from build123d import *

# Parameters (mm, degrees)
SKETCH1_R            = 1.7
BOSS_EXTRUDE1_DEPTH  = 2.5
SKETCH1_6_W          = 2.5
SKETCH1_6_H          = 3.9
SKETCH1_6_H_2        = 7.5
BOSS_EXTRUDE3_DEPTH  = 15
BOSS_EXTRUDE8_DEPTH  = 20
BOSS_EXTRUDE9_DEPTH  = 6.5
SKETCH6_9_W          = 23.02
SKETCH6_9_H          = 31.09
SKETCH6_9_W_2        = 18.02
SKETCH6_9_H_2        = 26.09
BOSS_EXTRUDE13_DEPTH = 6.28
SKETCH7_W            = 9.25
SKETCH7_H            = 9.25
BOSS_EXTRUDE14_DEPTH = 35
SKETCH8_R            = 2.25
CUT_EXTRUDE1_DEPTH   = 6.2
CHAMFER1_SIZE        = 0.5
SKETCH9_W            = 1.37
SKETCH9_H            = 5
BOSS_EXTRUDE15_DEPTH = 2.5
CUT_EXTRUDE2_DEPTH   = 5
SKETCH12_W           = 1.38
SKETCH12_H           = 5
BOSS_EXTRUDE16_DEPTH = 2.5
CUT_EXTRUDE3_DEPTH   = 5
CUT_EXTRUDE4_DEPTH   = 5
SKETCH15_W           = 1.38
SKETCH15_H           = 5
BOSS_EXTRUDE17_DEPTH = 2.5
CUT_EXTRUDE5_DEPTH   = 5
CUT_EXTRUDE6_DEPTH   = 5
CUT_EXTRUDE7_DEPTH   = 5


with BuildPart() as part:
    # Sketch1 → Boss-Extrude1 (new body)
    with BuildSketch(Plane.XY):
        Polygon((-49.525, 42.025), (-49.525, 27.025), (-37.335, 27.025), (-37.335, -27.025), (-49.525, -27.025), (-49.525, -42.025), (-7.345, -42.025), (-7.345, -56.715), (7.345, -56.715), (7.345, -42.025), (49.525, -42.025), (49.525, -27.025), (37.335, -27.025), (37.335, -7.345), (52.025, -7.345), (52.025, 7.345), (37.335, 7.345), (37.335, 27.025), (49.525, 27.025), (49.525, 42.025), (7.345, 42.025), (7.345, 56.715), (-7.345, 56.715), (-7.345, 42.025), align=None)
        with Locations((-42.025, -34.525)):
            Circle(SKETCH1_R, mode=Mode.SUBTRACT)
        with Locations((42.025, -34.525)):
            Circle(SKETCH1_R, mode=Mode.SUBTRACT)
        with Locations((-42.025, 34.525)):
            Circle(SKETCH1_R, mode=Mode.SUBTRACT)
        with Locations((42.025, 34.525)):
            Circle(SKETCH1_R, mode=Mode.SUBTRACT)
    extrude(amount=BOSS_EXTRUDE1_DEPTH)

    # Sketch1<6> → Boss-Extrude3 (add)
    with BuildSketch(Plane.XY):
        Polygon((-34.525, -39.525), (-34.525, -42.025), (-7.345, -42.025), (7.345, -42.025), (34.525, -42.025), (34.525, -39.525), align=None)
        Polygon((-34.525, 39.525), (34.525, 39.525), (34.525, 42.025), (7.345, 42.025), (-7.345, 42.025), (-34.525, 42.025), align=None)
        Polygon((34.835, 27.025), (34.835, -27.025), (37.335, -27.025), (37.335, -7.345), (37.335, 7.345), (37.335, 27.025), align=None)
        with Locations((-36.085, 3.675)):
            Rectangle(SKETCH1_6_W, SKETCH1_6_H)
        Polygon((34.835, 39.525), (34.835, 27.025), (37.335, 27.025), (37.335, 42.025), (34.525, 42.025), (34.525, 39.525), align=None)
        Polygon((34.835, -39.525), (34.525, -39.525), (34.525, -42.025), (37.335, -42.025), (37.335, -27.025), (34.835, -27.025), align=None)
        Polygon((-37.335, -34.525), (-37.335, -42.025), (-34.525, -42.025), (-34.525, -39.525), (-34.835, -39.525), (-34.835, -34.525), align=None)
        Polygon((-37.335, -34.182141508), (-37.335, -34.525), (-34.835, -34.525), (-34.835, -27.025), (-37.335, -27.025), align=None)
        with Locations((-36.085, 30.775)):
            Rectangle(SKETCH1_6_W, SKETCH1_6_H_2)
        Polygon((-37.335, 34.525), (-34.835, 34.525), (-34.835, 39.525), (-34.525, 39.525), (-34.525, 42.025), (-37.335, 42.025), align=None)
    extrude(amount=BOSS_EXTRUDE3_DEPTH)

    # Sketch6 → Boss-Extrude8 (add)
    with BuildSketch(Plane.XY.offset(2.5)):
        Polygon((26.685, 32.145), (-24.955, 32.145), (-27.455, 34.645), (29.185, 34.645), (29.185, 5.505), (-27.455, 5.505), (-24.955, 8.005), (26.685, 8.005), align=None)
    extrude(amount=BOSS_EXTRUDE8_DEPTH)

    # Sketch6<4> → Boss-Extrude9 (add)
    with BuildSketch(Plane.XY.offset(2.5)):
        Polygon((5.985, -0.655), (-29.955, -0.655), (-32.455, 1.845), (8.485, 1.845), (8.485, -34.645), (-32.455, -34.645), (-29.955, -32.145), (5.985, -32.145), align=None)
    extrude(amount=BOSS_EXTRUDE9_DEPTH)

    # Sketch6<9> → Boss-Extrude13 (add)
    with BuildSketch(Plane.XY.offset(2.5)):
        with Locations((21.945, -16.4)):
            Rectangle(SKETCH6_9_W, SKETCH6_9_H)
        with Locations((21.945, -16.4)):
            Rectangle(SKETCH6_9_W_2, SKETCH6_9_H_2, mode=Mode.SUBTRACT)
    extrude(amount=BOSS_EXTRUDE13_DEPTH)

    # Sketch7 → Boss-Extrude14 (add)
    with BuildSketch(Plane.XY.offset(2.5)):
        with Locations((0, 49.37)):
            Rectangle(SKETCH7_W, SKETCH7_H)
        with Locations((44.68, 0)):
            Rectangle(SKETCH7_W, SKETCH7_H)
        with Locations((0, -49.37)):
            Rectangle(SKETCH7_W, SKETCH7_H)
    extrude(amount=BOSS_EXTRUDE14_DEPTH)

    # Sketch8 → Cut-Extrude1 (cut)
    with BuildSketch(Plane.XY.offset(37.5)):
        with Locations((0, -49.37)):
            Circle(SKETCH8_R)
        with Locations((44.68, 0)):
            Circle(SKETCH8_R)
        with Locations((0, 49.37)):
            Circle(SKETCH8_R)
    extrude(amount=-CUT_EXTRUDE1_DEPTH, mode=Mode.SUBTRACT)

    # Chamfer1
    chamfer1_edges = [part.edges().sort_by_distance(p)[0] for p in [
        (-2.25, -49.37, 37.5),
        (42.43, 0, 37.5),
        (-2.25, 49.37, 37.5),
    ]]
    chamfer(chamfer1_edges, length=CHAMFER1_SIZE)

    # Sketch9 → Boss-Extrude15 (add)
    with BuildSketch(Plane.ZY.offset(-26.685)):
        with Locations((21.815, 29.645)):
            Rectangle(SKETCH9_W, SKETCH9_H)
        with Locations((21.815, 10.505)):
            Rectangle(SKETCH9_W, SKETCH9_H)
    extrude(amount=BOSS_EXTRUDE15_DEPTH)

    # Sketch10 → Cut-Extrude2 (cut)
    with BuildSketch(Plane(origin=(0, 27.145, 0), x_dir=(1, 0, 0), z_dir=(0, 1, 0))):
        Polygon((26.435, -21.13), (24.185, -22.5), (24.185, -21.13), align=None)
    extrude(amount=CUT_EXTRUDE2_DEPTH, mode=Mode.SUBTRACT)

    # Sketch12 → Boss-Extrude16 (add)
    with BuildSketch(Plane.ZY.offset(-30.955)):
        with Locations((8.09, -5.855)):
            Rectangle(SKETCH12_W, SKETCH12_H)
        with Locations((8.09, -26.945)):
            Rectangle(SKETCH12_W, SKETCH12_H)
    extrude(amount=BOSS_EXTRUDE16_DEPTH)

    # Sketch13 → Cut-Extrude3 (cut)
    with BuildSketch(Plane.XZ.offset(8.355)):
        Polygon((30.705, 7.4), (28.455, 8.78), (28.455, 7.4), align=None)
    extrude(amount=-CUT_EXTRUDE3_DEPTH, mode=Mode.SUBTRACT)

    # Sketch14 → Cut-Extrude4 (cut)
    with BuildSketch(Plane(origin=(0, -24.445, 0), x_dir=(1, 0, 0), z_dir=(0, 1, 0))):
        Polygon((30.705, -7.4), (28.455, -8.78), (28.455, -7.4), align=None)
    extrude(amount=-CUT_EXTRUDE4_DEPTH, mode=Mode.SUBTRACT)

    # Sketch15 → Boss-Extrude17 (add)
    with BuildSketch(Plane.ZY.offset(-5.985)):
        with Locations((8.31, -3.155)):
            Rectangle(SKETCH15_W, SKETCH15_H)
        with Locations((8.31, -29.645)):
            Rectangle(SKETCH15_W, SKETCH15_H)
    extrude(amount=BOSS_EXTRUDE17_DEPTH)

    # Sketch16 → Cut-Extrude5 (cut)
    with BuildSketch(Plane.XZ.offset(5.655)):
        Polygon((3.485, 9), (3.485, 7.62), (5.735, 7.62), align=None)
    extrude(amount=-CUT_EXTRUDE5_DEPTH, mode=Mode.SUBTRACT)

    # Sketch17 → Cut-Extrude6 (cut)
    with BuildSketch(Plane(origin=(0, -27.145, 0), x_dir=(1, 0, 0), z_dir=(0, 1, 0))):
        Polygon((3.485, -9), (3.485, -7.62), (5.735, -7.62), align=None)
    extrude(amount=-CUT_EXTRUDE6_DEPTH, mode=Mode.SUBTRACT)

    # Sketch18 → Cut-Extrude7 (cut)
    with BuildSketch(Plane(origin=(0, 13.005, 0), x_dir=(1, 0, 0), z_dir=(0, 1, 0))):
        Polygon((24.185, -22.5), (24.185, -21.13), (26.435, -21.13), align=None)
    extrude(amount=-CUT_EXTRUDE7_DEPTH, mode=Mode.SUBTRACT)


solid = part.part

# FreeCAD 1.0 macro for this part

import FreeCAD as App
import Part
import Sketcher

V = App.Vector


def edges_at(feature, points):
    """Names of the edges that pass closest to the given points."""
    edges = feature.Shape.Edges
    near = lambda p: min(range(len(edges)), key=lambda i: edges[i].distToShape(Part.Vertex(*p))[0])
    return sorted({f"Edge{near(p) + 1}" for p in points})

doc = App.newDocument("Part")
body = doc.addObject("PartDesign::Body", "Body")

# Sketch on XY plane
sketch1 = body.newObject("Sketcher::SketchObject", "Sketch")
sketch1.AttachmentSupport = (doc.getObject("XY_Plane"), [""])
sketch1.MapMode = "FlatFace"
sketch1.addGeometry([
    Part.LineSegment(V(-49.5, 42, 0), V(-49.5, 27, 0)),  # 0
    Part.LineSegment(V(-49.5, 27, 0), V(-37.3, 27, 0)),  # 1
    Part.LineSegment(V(-37.3, 27, 0), V(-37.3, -27, 0)),  # 2
    Part.LineSegment(V(-37.3, -27, 0), V(-49.5, -27, 0)),  # 3
    Part.LineSegment(V(-49.5, -27, 0), V(-49.5, -42, 0)),  # 4
    Part.LineSegment(V(-49.5, -42, 0), V(-7.3, -42, 0)),  # 5
    Part.LineSegment(V(-7.3, -42, 0), V(-7.3, -56.7, 0)),  # 6
    Part.LineSegment(V(-7.3, -56.7, 0), V(7.3, -56.7, 0)),  # 7
    Part.LineSegment(V(7.3, -56.7, 0), V(7.3, -42, 0)),  # 8
    Part.LineSegment(V(7.3, -42, 0), V(49.5, -42, 0)),  # 9
    Part.LineSegment(V(49.5, -42, 0), V(49.5, -27, 0)),  # 10
    Part.LineSegment(V(49.5, -27, 0), V(37.3, -27, 0)),  # 11
    Part.LineSegment(V(37.3, -27, 0), V(37.3, -7.3, 0)),  # 12
    Part.LineSegment(V(37.3, -7.3, 0), V(52, -7.3, 0)),  # 13
    Part.LineSegment(V(52, -7.3, 0), V(52, 7.3, 0)),  # 14
    Part.LineSegment(V(52, 7.3, 0), V(37.3, 7.3, 0)),  # 15
    Part.LineSegment(V(37.3, 7.3, 0), V(37.3, 27, 0)),  # 16
    Part.LineSegment(V(37.3, 27, 0), V(49.5, 27, 0)),  # 17
    Part.LineSegment(V(49.5, 27, 0), V(49.5, 42, 0)),  # 18
    Part.LineSegment(V(49.5, 42, 0), V(7.3, 42, 0)),  # 19
    Part.LineSegment(V(7.3, 42, 0), V(7.3, 56.7, 0)),  # 20
    Part.LineSegment(V(7.3, 56.7, 0), V(-7.3, 56.7, 0)),  # 21
    Part.LineSegment(V(-7.3, 56.7, 0), V(-7.3, 42, 0)),  # 22
    Part.LineSegment(V(-7.3, 42, 0), V(-49.5, 42, 0)),  # 23
    Part.Circle(V(-42, -34.5, 0), V(0, 0, 1), 1.7),  # 24
    Part.Circle(V(42, -34.5, 0), V(0, 0, 1), 1.7),  # 25
    Part.Circle(V(-42, 34.5, 0), V(0, 0, 1), 1.7),  # 26
    Part.Circle(V(42, 34.5, 0), V(0, 0, 1), 1.7),  # 27
], False)
sketch1.addConstraint([
    Sketcher.Constraint("Coincident", 0, 2, 1, 1),
    Sketcher.Constraint("Coincident", 1, 2, 2, 1),
    Sketcher.Constraint("Coincident", 2, 2, 3, 1),
    Sketcher.Constraint("Coincident", 3, 2, 4, 1),
    Sketcher.Constraint("Coincident", 4, 2, 5, 1),
    Sketcher.Constraint("Coincident", 5, 2, 6, 1),
    Sketcher.Constraint("Coincident", 6, 2, 7, 1),
    Sketcher.Constraint("Coincident", 7, 2, 8, 1),
    Sketcher.Constraint("Coincident", 8, 2, 9, 1),
    Sketcher.Constraint("Coincident", 9, 2, 10, 1),
    Sketcher.Constraint("Coincident", 10, 2, 11, 1),
    Sketcher.Constraint("Coincident", 11, 2, 12, 1),
    Sketcher.Constraint("Coincident", 12, 2, 13, 1),
    Sketcher.Constraint("Coincident", 13, 2, 14, 1),
    Sketcher.Constraint("Coincident", 14, 2, 15, 1),
    Sketcher.Constraint("Coincident", 15, 2, 16, 1),
    Sketcher.Constraint("Coincident", 16, 2, 17, 1),
    Sketcher.Constraint("Coincident", 17, 2, 18, 1),
    Sketcher.Constraint("Coincident", 18, 2, 19, 1),
    Sketcher.Constraint("Coincident", 19, 2, 20, 1),
    Sketcher.Constraint("Coincident", 20, 2, 21, 1),
    Sketcher.Constraint("Coincident", 21, 2, 22, 1),
    Sketcher.Constraint("Coincident", 22, 2, 23, 1),
    Sketcher.Constraint("Coincident", 23, 2, 0, 1),
    Sketcher.Constraint("Vertical", 0),
    Sketcher.Constraint("Horizontal", 1),
    Sketcher.Constraint("Vertical", 2),
    Sketcher.Constraint("Horizontal", 3),
    Sketcher.Constraint("Vertical", 4),
    Sketcher.Constraint("Horizontal", 5),
    Sketcher.Constraint("Vertical", 6),
    Sketcher.Constraint("Horizontal", 7),
    Sketcher.Constraint("Vertical", 8),
    Sketcher.Constraint("Horizontal", 9),
    Sketcher.Constraint("Vertical", 10),
    Sketcher.Constraint("Horizontal", 11),
    Sketcher.Constraint("Vertical", 12),
    Sketcher.Constraint("Horizontal", 13),
    Sketcher.Constraint("Vertical", 14),
    Sketcher.Constraint("Horizontal", 15),
    Sketcher.Constraint("Vertical", 16),
    Sketcher.Constraint("Horizontal", 17),
    Sketcher.Constraint("Vertical", 18),
    Sketcher.Constraint("Horizontal", 19),
    Sketcher.Constraint("Vertical", 20),
    Sketcher.Constraint("Horizontal", 21),
    Sketcher.Constraint("Vertical", 22),
    Sketcher.Constraint("Horizontal", 23),
    Sketcher.Constraint("Equal", 24, 25),
    Sketcher.Constraint("Equal", 25, 26),
    Sketcher.Constraint("Equal", 26, 27),
    Sketcher.Constraint("Symmetric", 25, 3, 26, 3, -1, 1),
    Sketcher.Constraint("Symmetric", 24, 3, 27, 3, -1, 1),
    Sketcher.Constraint("Symmetric", 0, 2, 10, 2, -1, 1),
    Sketcher.Constraint("Symmetric", 2, 2, 16, 2, -1, 1),
    Sketcher.Constraint("Symmetric", 4, 2, 18, 2, -1, 1),
    Sketcher.Constraint("Symmetric", 6, 2, 20, 2, -1, 1),
    Sketcher.Constraint("Symmetric", 8, 2, 22, 2, -1, 1),
    Sketcher.Constraint("Symmetric", 24, 3, 25, 3, -2),
    Sketcher.Constraint("Symmetric", 5, 2, 8, 2, -2),
    Sketcher.Constraint("Symmetric", 3, 2, 10, 2, -2),
    Sketcher.Constraint("Symmetric", 12, 2, 15, 2, -1),
    Sketcher.Constraint("Equal", 7, 13),
    Sketcher.Constraint("Equal", 21, 6),
    Sketcher.Constraint("Equal", 8, 14),
    Sketcher.Constraint("Diameter", 24, 3.4),
    Sketcher.Constraint("DistanceY", 0, 2, 0, 1, 15.0),
    Sketcher.Constraint("DistanceX", 25, 3, 13, 2, 10.0),
    Sketcher.Constraint("DistanceX", 1, 1, 1, 2, 12.19),
    Sketcher.Constraint("DistanceX", 5, 1, 5, 2, 42.18),
    Sketcher.Constraint("DistanceX", 7, 1, 7, 2, 14.69),
    Sketcher.Constraint("DistanceY", 2, 2, 2, 1, 54.05),
    Sketcher.Constraint("DistanceY", 0, 2, 26, 3, 7.5),
])
pad1 = body.newObject("PartDesign::Pad", "Pad")
pad1.Profile = sketch1
pad1.Length = 2.5

# Sketch on XY plane
sketch2 = body.newObject("Sketcher::SketchObject", "Sketch001")
sketch2.AttachmentSupport = (doc.getObject("XY_Plane"), [""])
sketch2.MapMode = "FlatFace"
sketch2.addGeometry([
    Part.LineSegment(V(37.3, -42, 0), V(37.3, 42, 0)),  # 0
    Part.LineSegment(V(37.3, 42, 0), V(-37.3, 42, 0)),  # 1
    Part.LineSegment(V(-37.3, 42, 0), V(-37.3, 27, 0)),  # 2
    Part.LineSegment(V(-37.3, 27, 0), V(-34.8, 27, 0)),  # 3
    Part.LineSegment(V(-34.8, 27, 0), V(-34.8, 39.5, 0)),  # 4
    Part.LineSegment(V(-34.8, 39.5, 0), V(34.8, 39.5, 0)),  # 5
    Part.LineSegment(V(34.8, 39.5, 0), V(34.8, -39.5, 0)),  # 6
    Part.LineSegment(V(34.8, -39.5, 0), V(-34.8, -39.5, 0)),  # 7
    Part.LineSegment(V(-34.8, -39.5, 0), V(-34.8, -27, 0)),  # 8
    Part.LineSegment(V(-34.8, -27, 0), V(-37.3, -27, 0)),  # 9
    Part.LineSegment(V(-37.3, -27, 0), V(-37.3, -42, 0)),  # 10
    Part.LineSegment(V(-37.3, -42, 0), V(37.3, -42, 0)),  # 11
    Part.LineSegment(V(-37.3, 5.6, 0), V(-37.3, 1.7, 0)),  # 12
    Part.LineSegment(V(-37.3, 1.7, 0), V(-34.8, 1.7, 0)),  # 13
    Part.LineSegment(V(-34.8, 1.7, 0), V(-34.8, 5.6, 0)),  # 14
    Part.LineSegment(V(-34.8, 5.6, 0), V(-37.3, 5.6, 0)),  # 15
], False)
sketch2.addConstraint([
    Sketcher.Constraint("Coincident", 0, 2, 1, 1),
    Sketcher.Constraint("Coincident", 1, 2, 2, 1),
    Sketcher.Constraint("Coincident", 2, 2, 3, 1),
    Sketcher.Constraint("Coincident", 3, 2, 4, 1),
    Sketcher.Constraint("Coincident", 4, 2, 5, 1),
    Sketcher.Constraint("Coincident", 5, 2, 6, 1),
    Sketcher.Constraint("Coincident", 6, 2, 7, 1),
    Sketcher.Constraint("Coincident", 7, 2, 8, 1),
    Sketcher.Constraint("Coincident", 8, 2, 9, 1),
    Sketcher.Constraint("Coincident", 9, 2, 10, 1),
    Sketcher.Constraint("Coincident", 10, 2, 11, 1),
    Sketcher.Constraint("Coincident", 11, 2, 0, 1),
    Sketcher.Constraint("Coincident", 12, 2, 13, 1),
    Sketcher.Constraint("Coincident", 13, 2, 14, 1),
    Sketcher.Constraint("Coincident", 14, 2, 15, 1),
    Sketcher.Constraint("Coincident", 15, 2, 12, 1),
    Sketcher.Constraint("Vertical", 0),
    Sketcher.Constraint("Horizontal", 1),
    Sketcher.Constraint("Vertical", 2),
    Sketcher.Constraint("Horizontal", 3),
    Sketcher.Constraint("Vertical", 4),
    Sketcher.Constraint("Horizontal", 5),
    Sketcher.Constraint("Vertical", 6),
    Sketcher.Constraint("Horizontal", 7),
    Sketcher.Constraint("Vertical", 8),
    Sketcher.Constraint("Horizontal", 9),
    Sketcher.Constraint("Vertical", 10),
    Sketcher.Constraint("Horizontal", 11),
    Sketcher.Constraint("Vertical", 12),
    Sketcher.Constraint("Horizontal", 13),
    Sketcher.Constraint("Vertical", 14),
    Sketcher.Constraint("Horizontal", 15),
    Sketcher.Constraint("Symmetric", 4, 2, 6, 2, -1, 1),
    Sketcher.Constraint("Symmetric", 0, 2, 10, 2, -1, 1),
    Sketcher.Constraint("Symmetric", 3, 2, 8, 2, -1),
    Sketcher.Constraint("Vertical", 2, 2, 9, 2),
    Sketcher.Constraint("Vertical", 10, 2, 12, 2),
    Sketcher.Constraint("Vertical", 8, 2, 13, 2),
    Sketcher.Constraint("DistanceY", 2, 2, 2, 1, 15.0),
    Sketcher.Constraint("DistanceX", 3, 1, 3, 2, 2.5),
    Sketcher.Constraint("DistanceY", 4, 1, 4, 2, 12.5),
    Sketcher.Constraint("DistanceY", 12, 2, 12, 1, 3.9),
    Sketcher.Constraint("DistanceX", 1, 2, 1, 1, 74.67),
    Sketcher.Constraint("DistanceY", 0, 1, 0, 2, 84.05),
    Sketcher.Constraint("DistanceY", 12, 2, 2, 2, 25.3),
])
pad2 = body.newObject("PartDesign::Pad", "Pad001")
pad2.Profile = sketch2
pad2.Length = 15

# Sketch on XY plane
sketch3 = body.newObject("Sketcher::SketchObject", "Sketch002")
sketch3.AttachmentSupport = (doc.getObject("XY_Plane"), [""])
sketch3.MapMode = "FlatFace"
sketch3.AttachmentOffset = App.Placement(V(0, 0, 2.5), App.Rotation())
sketch3.addGeometry([
    Part.LineSegment(V(-25, 32.1, 0), V(26.7, 32.1, 0)),  # 0
    Part.LineSegment(V(26.7, 32.1, 0), V(26.7, 8, 0)),  # 1
    Part.LineSegment(V(26.7, 8, 0), V(-25, 8, 0)),  # 2
    Part.LineSegment(V(-25, 8, 0), V(-27.5, 5.5, 0)),  # 3
    Part.LineSegment(V(-27.5, 5.5, 0), V(29.2, 5.5, 0)),  # 4
    Part.LineSegment(V(29.2, 5.5, 0), V(29.2, 34.6, 0)),  # 5
    Part.LineSegment(V(29.2, 34.6, 0), V(-27.5, 34.6, 0)),  # 6
    Part.LineSegment(V(-27.5, 34.6, 0), V(-25, 32.1, 0)),  # 7
], False)
sketch3.addConstraint([
    Sketcher.Constraint("Coincident", 0, 2, 1, 1),
    Sketcher.Constraint("Coincident", 1, 2, 2, 1),
    Sketcher.Constraint("Coincident", 2, 2, 3, 1),
    Sketcher.Constraint("Coincident", 3, 2, 4, 1),
    Sketcher.Constraint("Coincident", 4, 2, 5, 1),
    Sketcher.Constraint("Coincident", 5, 2, 6, 1),
    Sketcher.Constraint("Coincident", 6, 2, 7, 1),
    Sketcher.Constraint("Coincident", 7, 2, 0, 1),
    Sketcher.Constraint("Horizontal", 0),
    Sketcher.Constraint("Vertical", 1),
    Sketcher.Constraint("Horizontal", 2),
    Sketcher.Constraint("Horizontal", 4),
    Sketcher.Constraint("Vertical", 5),
    Sketcher.Constraint("Horizontal", 6),
    Sketcher.Constraint("Perpendicular", 3, 7),
    Sketcher.Constraint("Vertical", 3, 2, 6, 2),
    Sketcher.Constraint("Vertical", 2, 2, 7, 2),
    Sketcher.Constraint("Equal", 3, 7),
    Sketcher.Constraint("DistanceX", 0, 1, 0, 2, 51.64),
    Sketcher.Constraint("DistanceX", 4, 1, 4, 2, 56.64),
    Sketcher.Constraint("DistanceY", 1, 2, 1, 1, 24.14),
    Sketcher.Constraint("DistanceY", 5, 1, 5, 2, 29.14),
    Sketcher.Constraint("DistanceX", -1, 1, 0, 2, 26.685),
    Sketcher.Constraint("DistanceY", -1, 1, 0, 2, 32.145),
])
pad3 = body.newObject("PartDesign::Pad", "Pad002")
pad3.Profile = sketch3
pad3.Length = 20

# Sketch on XY plane
sketch4 = body.newObject("Sketcher::SketchObject", "Sketch003")
sketch4.AttachmentSupport = (doc.getObject("XY_Plane"), [""])
sketch4.MapMode = "FlatFace"
sketch4.AttachmentOffset = App.Placement(V(0, 0, 2.5), App.Rotation())
sketch4.addGeometry([
    Part.LineSegment(V(-30, -0.7, 0), V(6, -0.7, 0)),  # 0
    Part.LineSegment(V(6, -0.7, 0), V(6, -32.1, 0)),  # 1
    Part.LineSegment(V(6, -32.1, 0), V(-30, -32.1, 0)),  # 2
    Part.LineSegment(V(-30, -32.1, 0), V(-32.5, -34.6, 0)),  # 3
    Part.LineSegment(V(-32.5, -34.6, 0), V(8.5, -34.6, 0)),  # 4
    Part.LineSegment(V(8.5, -34.6, 0), V(8.5, 1.8, 0)),  # 5
    Part.LineSegment(V(8.5, 1.8, 0), V(-32.5, 1.8, 0)),  # 6
    Part.LineSegment(V(-32.5, 1.8, 0), V(-30, -0.7, 0)),  # 7
], False)
sketch4.addConstraint([
    Sketcher.Constraint("Coincident", 0, 2, 1, 1),
    Sketcher.Constraint("Coincident", 1, 2, 2, 1),
    Sketcher.Constraint("Coincident", 2, 2, 3, 1),
    Sketcher.Constraint("Coincident", 3, 2, 4, 1),
    Sketcher.Constraint("Coincident", 4, 2, 5, 1),
    Sketcher.Constraint("Coincident", 5, 2, 6, 1),
    Sketcher.Constraint("Coincident", 6, 2, 7, 1),
    Sketcher.Constraint("Coincident", 7, 2, 0, 1),
    Sketcher.Constraint("Horizontal", 0),
    Sketcher.Constraint("Vertical", 1),
    Sketcher.Constraint("Horizontal", 2),
    Sketcher.Constraint("Horizontal", 4),
    Sketcher.Constraint("Vertical", 5),
    Sketcher.Constraint("Horizontal", 6),
    Sketcher.Constraint("Perpendicular", 3, 7),
    Sketcher.Constraint("Vertical", 3, 2, 6, 2),
    Sketcher.Constraint("Vertical", 2, 2, 7, 2),
    Sketcher.Constraint("Equal", 3, 7),
    Sketcher.Constraint("DistanceX", 0, 1, 0, 2, 35.94),
    Sketcher.Constraint("DistanceX", 4, 1, 4, 2, 40.94),
    Sketcher.Constraint("DistanceY", 1, 2, 1, 1, 31.49),
    Sketcher.Constraint("DistanceY", 5, 1, 5, 2, 36.49),
    Sketcher.Constraint("DistanceX", -1, 1, 0, 2, 5.985),
    Sketcher.Constraint("DistanceY", 0, 2, -1, 1, 0.655),
])
pad4 = body.newObject("PartDesign::Pad", "Pad003")
pad4.Profile = sketch4
pad4.Length = 6.5

# Sketch on XY plane
sketch5 = body.newObject("Sketcher::SketchObject", "Sketch004")
sketch5.AttachmentSupport = (doc.getObject("XY_Plane"), [""])
sketch5.MapMode = "FlatFace"
sketch5.AttachmentOffset = App.Placement(V(0, 0, 2.5), App.Rotation())
sketch5.addGeometry([
    Part.LineSegment(V(10, -1, 0), V(10, -32, 0)),  # 0
    Part.LineSegment(V(10, -32, 0), V(33, -32, 0)),  # 1
    Part.LineSegment(V(33, -32, 0), V(33, -1, 0)),  # 2
    Part.LineSegment(V(33, -1, 0), V(10, -1, 0)),  # 3
    Part.LineSegment(V(31, -29, 0), V(13, -29, 0)),  # 4
    Part.LineSegment(V(13, -29, 0), V(13, -3, 0)),  # 5
    Part.LineSegment(V(13, -3, 0), V(31, -3, 0)),  # 6
    Part.LineSegment(V(31, -3, 0), V(31, -29, 0)),  # 7
], False)
sketch5.addConstraint([
    Sketcher.Constraint("Coincident", 0, 2, 1, 1),
    Sketcher.Constraint("Coincident", 1, 2, 2, 1),
    Sketcher.Constraint("Coincident", 2, 2, 3, 1),
    Sketcher.Constraint("Coincident", 3, 2, 0, 1),
    Sketcher.Constraint("Coincident", 4, 2, 5, 1),
    Sketcher.Constraint("Coincident", 5, 2, 6, 1),
    Sketcher.Constraint("Coincident", 6, 2, 7, 1),
    Sketcher.Constraint("Coincident", 7, 2, 4, 1),
    Sketcher.Constraint("Vertical", 0),
    Sketcher.Constraint("Horizontal", 1),
    Sketcher.Constraint("Vertical", 2),
    Sketcher.Constraint("Horizontal", 3),
    Sketcher.Constraint("Horizontal", 4),
    Sketcher.Constraint("Vertical", 5),
    Sketcher.Constraint("Horizontal", 6),
    Sketcher.Constraint("Vertical", 7),
    Sketcher.Constraint("DistanceX", 1, 1, 1, 2, 23.02),
    Sketcher.Constraint("DistanceX", 4, 2, 4, 1, 18.02),
    Sketcher.Constraint("DistanceY", 0, 2, 0, 1, 31.09),
    Sketcher.Constraint("DistanceY", 5, 1, 5, 2, 26.09),
    Sketcher.Constraint("DistanceX", 0, 2, 4, 2, 2.5),
    Sketcher.Constraint("DistanceY", 0, 2, 4, 2, 2.5),
    Sketcher.Constraint("DistanceX", -1, 1, 0, 2, 10.435),
    Sketcher.Constraint("DistanceY", 0, 2, -1, 1, 31.945),
])
pad5 = body.newObject("PartDesign::Pad", "Pad004")
pad5.Profile = sketch5
pad5.Length = 6.28

# Sketch on XY plane
sketch6 = body.newObject("Sketcher::SketchObject", "Sketch005")
sketch6.AttachmentSupport = (doc.getObject("XY_Plane"), [""])
sketch6.MapMode = "FlatFace"
sketch6.AttachmentOffset = App.Placement(V(0, 0, 2.5), App.Rotation())
sketch6.addGeometry([
    Part.LineSegment(V(-5, 54, 0), V(-5, 45, 0)),  # 0
    Part.LineSegment(V(-5, 45, 0), V(5, 45, 0)),  # 1
    Part.LineSegment(V(5, 45, 0), V(5, 54, 0)),  # 2
    Part.LineSegment(V(5, 54, 0), V(-5, 54, 0)),  # 3
    Part.LineSegment(V(40, 5, 0), V(40, -5, 0)),  # 4
    Part.LineSegment(V(40, -5, 0), V(49, -5, 0)),  # 5
    Part.LineSegment(V(49, -5, 0), V(49, 5, 0)),  # 6
    Part.LineSegment(V(49, 5, 0), V(40, 5, 0)),  # 7
    Part.LineSegment(V(-5, -45, 0), V(-5, -54, 0)),  # 8
    Part.LineSegment(V(-5, -54, 0), V(5, -54, 0)),  # 9
    Part.LineSegment(V(5, -54, 0), V(5, -45, 0)),  # 10
    Part.LineSegment(V(5, -45, 0), V(-5, -45, 0)),  # 11
], False)
sketch6.addConstraint([
    Sketcher.Constraint("Coincident", 0, 2, 1, 1),
    Sketcher.Constraint("Coincident", 1, 2, 2, 1),
    Sketcher.Constraint("Coincident", 2, 2, 3, 1),
    Sketcher.Constraint("Coincident", 3, 2, 0, 1),
    Sketcher.Constraint("Coincident", 4, 2, 5, 1),
    Sketcher.Constraint("Coincident", 5, 2, 6, 1),
    Sketcher.Constraint("Coincident", 6, 2, 7, 1),
    Sketcher.Constraint("Coincident", 7, 2, 4, 1),
    Sketcher.Constraint("Coincident", 8, 2, 9, 1),
    Sketcher.Constraint("Coincident", 9, 2, 10, 1),
    Sketcher.Constraint("Coincident", 10, 2, 11, 1),
    Sketcher.Constraint("Coincident", 11, 2, 8, 1),
    Sketcher.Constraint("Vertical", 0),
    Sketcher.Constraint("Horizontal", 1),
    Sketcher.Constraint("Vertical", 2),
    Sketcher.Constraint("Horizontal", 3),
    Sketcher.Constraint("Vertical", 4),
    Sketcher.Constraint("Horizontal", 5),
    Sketcher.Constraint("Vertical", 6),
    Sketcher.Constraint("Horizontal", 7),
    Sketcher.Constraint("Vertical", 8),
    Sketcher.Constraint("Horizontal", 9),
    Sketcher.Constraint("Vertical", 10),
    Sketcher.Constraint("Horizontal", 11),
    Sketcher.Constraint("Symmetric", 2, 2, 8, 2, -1, 1),
    Sketcher.Constraint("Symmetric", 0, 2, 10, 2, -1, 1),
    Sketcher.Constraint("Vertical", 3, 2, 8, 2),
    Sketcher.Constraint("Equal", 3, 5),
    Sketcher.Constraint("Equal", 11, 0),
    Sketcher.Constraint("Equal", 2, 4),
    Sketcher.Constraint("DistanceX", 1, 1, 1, 2, 9.25),
    Sketcher.Constraint("DistanceX", 1, 2, 4, 2, 35.43),
    Sketcher.Constraint("DistanceY", 4, 2, 1, 2, 49.37),
    Sketcher.Constraint("DistanceY", 8, 2, 4, 2, 49.37),
])
pad6 = body.newObject("PartDesign::Pad", "Pad005")
pad6.Profile = sketch6
pad6.Length = 35

# Sketch on XY plane
sketch7 = body.newObject("Sketcher::SketchObject", "Sketch006")
sketch7.AttachmentSupport = (doc.getObject("XY_Plane"), [""])
sketch7.MapMode = "FlatFace"
sketch7.AttachmentOffset = App.Placement(V(0, 0, 37.5), App.Rotation())
sketch7.addGeometry([
    Part.Circle(V(0, -49.4, 0), V(0, 0, 1), 2.2),
    Part.Circle(V(44.7, 0, 0), V(0, 0, 1), 2.2),
    Part.Circle(V(0, 49.4, 0), V(0, 0, 1), 2.2),
], False)
sketch7.addConstraint([
    Sketcher.Constraint("Equal", 0, 1),
    Sketcher.Constraint("Equal", 1, 2),
    Sketcher.Constraint("Symmetric", 0, 3, 2, 3, -1, 1),
    Sketcher.Constraint("PointOnObject", 0, 3, -2),
    Sketcher.Constraint("PointOnObject", 1, 3, -1),
    Sketcher.Constraint("Diameter", 0, 4.5),
    Sketcher.Constraint("DistanceY", 0, 3, -1, 1, 49.37),
    Sketcher.Constraint("DistanceX", -1, 1, 1, 3, 44.68),
])
pocket1 = body.newObject("PartDesign::Pocket", "Pocket")
pocket1.Profile = sketch7
pocket1.Length = 6.2
doc.recompute()

chamfer = body.newObject("PartDesign::Chamfer", "Chamfer")
chamfer.Base = (pocket1, edges_at(pocket1, [(-2.25, -49.37, 37.5), (42.43, 0, 37.5), (-2.25, 49.37, 37.5)]))
chamfer.Size = 0.5

# Sketch on YZ plane
sketch8 = body.newObject("Sketcher::SketchObject", "Sketch007")
sketch8.AttachmentSupport = (doc.getObject("YZ_Plane"), [""])
sketch8.MapMode = "FlatFace"
sketch8.AttachmentOffset = App.Placement(V(0, 0, 26.685), App.Rotation())
sketch8.addGeometry([
    Part.LineSegment(V(32.1, 21.1, 0), V(27.1, 21.1, 0)),  # 0
    Part.LineSegment(V(27.1, 21.1, 0), V(27.1, 22.5, 0)),  # 1
    Part.LineSegment(V(27.1, 22.5, 0), V(32.1, 22.5, 0)),  # 2
    Part.LineSegment(V(32.1, 22.5, 0), V(32.1, 21.1, 0)),  # 3
    Part.LineSegment(V(13, 21.1, 0), V(8, 21.1, 0)),  # 4
    Part.LineSegment(V(8, 21.1, 0), V(8, 22.5, 0)),  # 5
    Part.LineSegment(V(8, 22.5, 0), V(13, 22.5, 0)),  # 6
    Part.LineSegment(V(13, 22.5, 0), V(13, 21.1, 0)),  # 7
], False)
sketch8.addConstraint([
    Sketcher.Constraint("Coincident", 0, 2, 1, 1),
    Sketcher.Constraint("Coincident", 1, 2, 2, 1),
    Sketcher.Constraint("Coincident", 2, 2, 3, 1),
    Sketcher.Constraint("Coincident", 3, 2, 0, 1),
    Sketcher.Constraint("Coincident", 4, 2, 5, 1),
    Sketcher.Constraint("Coincident", 5, 2, 6, 1),
    Sketcher.Constraint("Coincident", 6, 2, 7, 1),
    Sketcher.Constraint("Coincident", 7, 2, 4, 1),
    Sketcher.Constraint("Horizontal", 0),
    Sketcher.Constraint("Vertical", 1),
    Sketcher.Constraint("Horizontal", 2),
    Sketcher.Constraint("Vertical", 3),
    Sketcher.Constraint("Horizontal", 4),
    Sketcher.Constraint("Vertical", 5),
    Sketcher.Constraint("Horizontal", 6),
    Sketcher.Constraint("Vertical", 7),
    Sketcher.Constraint("Horizontal", 3, 2, 4, 2),
    Sketcher.Constraint("Horizontal", 2, 2, 5, 2),
    Sketcher.Constraint("Equal", 2, 4),
    Sketcher.Constraint("DistanceX", 0, 2, 0, 1, 5.0),
    Sketcher.Constraint("DistanceY", 1, 1, 1, 2, 1.37),
    Sketcher.Constraint("DistanceY", -1, 1, 1, 2, 22.5),
    Sketcher.Constraint("DistanceX", 4, 2, 0, 2, 19.14),
    Sketcher.Constraint("DistanceX", -1, 1, 0, 2, 27.145),
])
pad7 = body.newObject("PartDesign::Pad", "Pad006")
pad7.Profile = sketch8
pad7.Length = 2.5
pad7.Reversed = True

# Sketch on XZ plane
sketch9 = body.newObject("Sketcher::SketchObject", "Sketch008")
sketch9.AttachmentSupport = (doc.getObject("XZ_Plane"), [""])
sketch9.MapMode = "FlatFace"
sketch9.AttachmentOffset = App.Placement(V(0, 0, -27.145), App.Rotation())
sketch9.addGeometry([
    Part.LineSegment(V(24.2, 22.5, 0), V(26.4, 21.1, 0)),
    Part.LineSegment(V(26.4, 21.1, 0), V(24.2, 21.1, 0)),
    Part.LineSegment(V(24.2, 21.1, 0), V(24.2, 22.5, 0)),
], False)
sketch9.addConstraint([
    Sketcher.Constraint("Coincident", 0, 2, 1, 1),
    Sketcher.Constraint("Coincident", 1, 2, 2, 1),
    Sketcher.Constraint("Coincident", 2, 2, 0, 1),
    Sketcher.Constraint("Horizontal", 1),
    Sketcher.Constraint("Vertical", 2),
    Sketcher.Constraint("DistanceX", 1, 2, 1, 1, 2.25),
    Sketcher.Constraint("DistanceY", 2, 1, 2, 2, 1.37),
    Sketcher.Constraint("DistanceY", -1, 1, 2, 2, 22.5),
    Sketcher.Constraint("DistanceX", -1, 1, 0, 2, 26.435),
])
pocket2 = body.newObject("PartDesign::Pocket", "Pocket001")
pocket2.Profile = sketch9
pocket2.Length = 5

# Sketch on YZ plane
sketch10 = body.newObject("Sketcher::SketchObject", "Sketch009")
sketch10.AttachmentSupport = (doc.getObject("YZ_Plane"), [""])
sketch10.MapMode = "FlatFace"
sketch10.AttachmentOffset = App.Placement(V(0, 0, 30.955), App.Rotation())
sketch10.addGeometry([
    Part.LineSegment(V(-3.4, 7.4, 0), V(-8.4, 7.4, 0)),  # 0
    Part.LineSegment(V(-8.4, 7.4, 0), V(-8.4, 8.8, 0)),  # 1
    Part.LineSegment(V(-8.4, 8.8, 0), V(-3.4, 8.8, 0)),  # 2
    Part.LineSegment(V(-3.4, 8.8, 0), V(-3.4, 7.4, 0)),  # 3
    Part.LineSegment(V(-24.4, 7.4, 0), V(-29.4, 7.4, 0)),  # 4
    Part.LineSegment(V(-29.4, 7.4, 0), V(-29.4, 8.8, 0)),  # 5
    Part.LineSegment(V(-29.4, 8.8, 0), V(-24.4, 8.8, 0)),  # 6
    Part.LineSegment(V(-24.4, 8.8, 0), V(-24.4, 7.4, 0)),  # 7
], False)
sketch10.addConstraint([
    Sketcher.Constraint("Coincident", 0, 2, 1, 1),
    Sketcher.Constraint("Coincident", 1, 2, 2, 1),
    Sketcher.Constraint("Coincident", 2, 2, 3, 1),
    Sketcher.Constraint("Coincident", 3, 2, 0, 1),
    Sketcher.Constraint("Coincident", 4, 2, 5, 1),
    Sketcher.Constraint("Coincident", 5, 2, 6, 1),
    Sketcher.Constraint("Coincident", 6, 2, 7, 1),
    Sketcher.Constraint("Coincident", 7, 2, 4, 1),
    Sketcher.Constraint("Horizontal", 0),
    Sketcher.Constraint("Vertical", 1),
    Sketcher.Constraint("Horizontal", 2),
    Sketcher.Constraint("Vertical", 3),
    Sketcher.Constraint("Horizontal", 4),
    Sketcher.Constraint("Vertical", 5),
    Sketcher.Constraint("Horizontal", 6),
    Sketcher.Constraint("Vertical", 7),
    Sketcher.Constraint("Horizontal", 3, 2, 4, 2),
    Sketcher.Constraint("Horizontal", 2, 2, 5, 2),
    Sketcher.Constraint("Equal", 2, 4),
    Sketcher.Constraint("DistanceX", 0, 2, 0, 1, 5.0),
    Sketcher.Constraint("DistanceY", 1, 1, 1, 2, 1.38),
    Sketcher.Constraint("DistanceY", -1, 1, 0, 2, 7.4),
    Sketcher.Constraint("DistanceX", 4, 2, 0, 2, 21.09),
    Sketcher.Constraint("DistanceX", 0, 2, -1, 1, 8.355),
])
pad8 = body.newObject("PartDesign::Pad", "Pad007")
pad8.Profile = sketch10
pad8.Length = 2.5
pad8.Reversed = True

# Sketch on XZ plane
sketch11 = body.newObject("Sketcher::SketchObject", "Sketch010")
sketch11.AttachmentSupport = (doc.getObject("XZ_Plane"), [""])
sketch11.MapMode = "FlatFace"
sketch11.AttachmentOffset = App.Placement(V(0, 0, 8.355), App.Rotation())
sketch11.addGeometry([
    Part.LineSegment(V(30.7, 7.4, 0), V(28.5, 8.8, 0)),
    Part.LineSegment(V(28.5, 8.8, 0), V(28.5, 7.4, 0)),
    Part.LineSegment(V(28.5, 7.4, 0), V(30.7, 7.4, 0)),
], False)
sketch11.addConstraint([
    Sketcher.Constraint("Coincident", 0, 2, 1, 1),
    Sketcher.Constraint("Coincident", 1, 2, 2, 1),
    Sketcher.Constraint("Coincident", 2, 2, 0, 1),
    Sketcher.Constraint("Vertical", 1),
    Sketcher.Constraint("Horizontal", 2),
    Sketcher.Constraint("DistanceX", 2, 1, 2, 2, 2.25),
    Sketcher.Constraint("DistanceY", 1, 2, 1, 1, 1.38),
    Sketcher.Constraint("DistanceY", -1, 1, 1, 2, 7.4),
    Sketcher.Constraint("DistanceX", -1, 1, 0, 2, 28.455),
])
pocket3 = body.newObject("PartDesign::Pocket", "Pocket002")
pocket3.Profile = sketch11
pocket3.Length = 5

# Sketch on XZ plane
sketch12 = body.newObject("Sketcher::SketchObject", "Sketch011")
sketch12.AttachmentSupport = (doc.getObject("XZ_Plane"), [""])
sketch12.MapMode = "FlatFace"
sketch12.AttachmentOffset = App.Placement(V(0, 0, 24.445), App.Rotation())
sketch12.addGeometry([
    Part.LineSegment(V(28.5, 8.8, 0), V(30.7, 7.4, 0)),
    Part.LineSegment(V(30.7, 7.4, 0), V(28.5, 7.4, 0)),
    Part.LineSegment(V(28.5, 7.4, 0), V(28.5, 8.8, 0)),
], False)
sketch12.addConstraint([
    Sketcher.Constraint("Coincident", 0, 2, 1, 1),
    Sketcher.Constraint("Coincident", 1, 2, 2, 1),
    Sketcher.Constraint("Coincident", 2, 2, 0, 1),
    Sketcher.Constraint("Horizontal", 1),
    Sketcher.Constraint("Vertical", 2),
    Sketcher.Constraint("DistanceX", 1, 2, 1, 1, 2.25),
    Sketcher.Constraint("DistanceY", 2, 1, 2, 2, 1.38),
    Sketcher.Constraint("DistanceY", -1, 1, 0, 2, 7.4),
    Sketcher.Constraint("DistanceX", -1, 1, 0, 2, 30.705),
])
pocket4 = body.newObject("PartDesign::Pocket", "Pocket003")
pocket4.Profile = sketch12
pocket4.Length = 5
pocket4.Reversed = True

# Sketch on YZ plane
sketch13 = body.newObject("Sketcher::SketchObject", "Sketch012")
sketch13.AttachmentSupport = (doc.getObject("YZ_Plane"), [""])
sketch13.MapMode = "FlatFace"
sketch13.AttachmentOffset = App.Placement(V(0, 0, 5.985), App.Rotation())
sketch13.addGeometry([
    Part.LineSegment(V(-0.7, 7.6, 0), V(-5.7, 7.6, 0)),  # 0
    Part.LineSegment(V(-5.7, 7.6, 0), V(-5.7, 9, 0)),  # 1
    Part.LineSegment(V(-5.7, 9, 0), V(-0.7, 9, 0)),  # 2
    Part.LineSegment(V(-0.7, 9, 0), V(-0.7, 7.6, 0)),  # 3
    Part.LineSegment(V(-27.1, 7.6, 0), V(-32.1, 7.6, 0)),  # 4
    Part.LineSegment(V(-32.1, 7.6, 0), V(-32.1, 9, 0)),  # 5
    Part.LineSegment(V(-32.1, 9, 0), V(-27.1, 9, 0)),  # 6
    Part.LineSegment(V(-27.1, 9, 0), V(-27.1, 7.6, 0)),  # 7
], False)
sketch13.addConstraint([
    Sketcher.Constraint("Coincident", 0, 2, 1, 1),
    Sketcher.Constraint("Coincident", 1, 2, 2, 1),
    Sketcher.Constraint("Coincident", 2, 2, 3, 1),
    Sketcher.Constraint("Coincident", 3, 2, 0, 1),
    Sketcher.Constraint("Coincident", 4, 2, 5, 1),
    Sketcher.Constraint("Coincident", 5, 2, 6, 1),
    Sketcher.Constraint("Coincident", 6, 2, 7, 1),
    Sketcher.Constraint("Coincident", 7, 2, 4, 1),
    Sketcher.Constraint("Horizontal", 0),
    Sketcher.Constraint("Vertical", 1),
    Sketcher.Constraint("Horizontal", 2),
    Sketcher.Constraint("Vertical", 3),
    Sketcher.Constraint("Horizontal", 4),
    Sketcher.Constraint("Vertical", 5),
    Sketcher.Constraint("Horizontal", 6),
    Sketcher.Constraint("Vertical", 7),
    Sketcher.Constraint("Horizontal", 3, 2, 4, 2),
    Sketcher.Constraint("Horizontal", 2, 2, 5, 2),
    Sketcher.Constraint("Equal", 2, 4),
    Sketcher.Constraint("DistanceX", 0, 2, 0, 1, 5.0),
    Sketcher.Constraint("DistanceY", -1, 1, 1, 2, 9.0),
    Sketcher.Constraint("DistanceY", 1, 1, 1, 2, 1.38),
    Sketcher.Constraint("DistanceX", 4, 2, 0, 2, 26.49),
    Sketcher.Constraint("DistanceX", 0, 2, -1, 1, 5.655),
])
pad9 = body.newObject("PartDesign::Pad", "Pad008")
pad9.Profile = sketch13
pad9.Length = 2.5
pad9.Reversed = True

# Sketch on XZ plane
sketch14 = body.newObject("Sketcher::SketchObject", "Sketch013")
sketch14.AttachmentSupport = (doc.getObject("XZ_Plane"), [""])
sketch14.MapMode = "FlatFace"
sketch14.AttachmentOffset = App.Placement(V(0, 0, 5.655), App.Rotation())
sketch14.addGeometry([
    Part.LineSegment(V(3.5, 9, 0), V(3.5, 7.6, 0)),
    Part.LineSegment(V(3.5, 7.6, 0), V(5.7, 7.6, 0)),
    Part.LineSegment(V(5.7, 7.6, 0), V(3.5, 9, 0)),
], False)
sketch14.addConstraint([
    Sketcher.Constraint("Coincident", 0, 2, 1, 1),
    Sketcher.Constraint("Coincident", 1, 2, 2, 1),
    Sketcher.Constraint("Coincident", 2, 2, 0, 1),
    Sketcher.Constraint("Vertical", 0),
    Sketcher.Constraint("Horizontal", 1),
    Sketcher.Constraint("DistanceY", -1, 1, 2, 2, 9.0),
    Sketcher.Constraint("DistanceX", 1, 1, 1, 2, 2.25),
    Sketcher.Constraint("DistanceY", 0, 2, 0, 1, 1.38),
    Sketcher.Constraint("DistanceX", -1, 1, 0, 2, 3.485),
])
pocket5 = body.newObject("PartDesign::Pocket", "Pocket004")
pocket5.Profile = sketch14
pocket5.Length = 5

# Sketch on XZ plane
sketch15 = body.newObject("Sketcher::SketchObject", "Sketch014")
sketch15.AttachmentSupport = (doc.getObject("XZ_Plane"), [""])
sketch15.MapMode = "FlatFace"
sketch15.AttachmentOffset = App.Placement(V(0, 0, 27.145), App.Rotation())
sketch15.addGeometry([
    Part.LineSegment(V(3.5, 7.6, 0), V(3.5, 9, 0)),
    Part.LineSegment(V(3.5, 9, 0), V(5.7, 7.6, 0)),
    Part.LineSegment(V(5.7, 7.6, 0), V(3.5, 7.6, 0)),
], False)
sketch15.addConstraint([
    Sketcher.Constraint("Coincident", 0, 2, 1, 1),
    Sketcher.Constraint("Coincident", 1, 2, 2, 1),
    Sketcher.Constraint("Coincident", 2, 2, 0, 1),
    Sketcher.Constraint("Vertical", 0),
    Sketcher.Constraint("Horizontal", 2),
    Sketcher.Constraint("DistanceY", -1, 1, 0, 2, 9.0),
    Sketcher.Constraint("DistanceX", 2, 2, 2, 1, 2.25),
    Sketcher.Constraint("DistanceY", 0, 1, 0, 2, 1.38),
    Sketcher.Constraint("DistanceX", -1, 1, 0, 2, 3.485),
])
pocket6 = body.newObject("PartDesign::Pocket", "Pocket005")
pocket6.Profile = sketch15
pocket6.Length = 5
pocket6.Reversed = True

# Sketch on XZ plane
sketch16 = body.newObject("Sketcher::SketchObject", "Sketch015")
sketch16.AttachmentSupport = (doc.getObject("XZ_Plane"), [""])
sketch16.MapMode = "FlatFace"
sketch16.AttachmentOffset = App.Placement(V(0, 0, -13.005), App.Rotation())
sketch16.addGeometry([
    Part.LineSegment(V(24.2, 21.1, 0), V(24.2, 22.5, 0)),
    Part.LineSegment(V(24.2, 22.5, 0), V(26.4, 21.1, 0)),
    Part.LineSegment(V(26.4, 21.1, 0), V(24.2, 21.1, 0)),
], False)
sketch16.addConstraint([
    Sketcher.Constraint("Coincident", 0, 2, 1, 1),
    Sketcher.Constraint("Coincident", 1, 2, 2, 1),
    Sketcher.Constraint("Coincident", 2, 2, 0, 1),
    Sketcher.Constraint("Vertical", 0),
    Sketcher.Constraint("Horizontal", 2),
    Sketcher.Constraint("DistanceX", 2, 2, 2, 1, 2.25),
    Sketcher.Constraint("DistanceY", 0, 1, 0, 2, 1.37),
    Sketcher.Constraint("DistanceY", -1, 1, 0, 2, 22.5),
    Sketcher.Constraint("DistanceX", -1, 1, 0, 2, 24.185),
])
pocket7 = body.newObject("PartDesign::Pocket", "Pocket006")
pocket7.Profile = sketch16
pocket7.Length = 5
pocket7.Reversed = True

doc.recompute()
